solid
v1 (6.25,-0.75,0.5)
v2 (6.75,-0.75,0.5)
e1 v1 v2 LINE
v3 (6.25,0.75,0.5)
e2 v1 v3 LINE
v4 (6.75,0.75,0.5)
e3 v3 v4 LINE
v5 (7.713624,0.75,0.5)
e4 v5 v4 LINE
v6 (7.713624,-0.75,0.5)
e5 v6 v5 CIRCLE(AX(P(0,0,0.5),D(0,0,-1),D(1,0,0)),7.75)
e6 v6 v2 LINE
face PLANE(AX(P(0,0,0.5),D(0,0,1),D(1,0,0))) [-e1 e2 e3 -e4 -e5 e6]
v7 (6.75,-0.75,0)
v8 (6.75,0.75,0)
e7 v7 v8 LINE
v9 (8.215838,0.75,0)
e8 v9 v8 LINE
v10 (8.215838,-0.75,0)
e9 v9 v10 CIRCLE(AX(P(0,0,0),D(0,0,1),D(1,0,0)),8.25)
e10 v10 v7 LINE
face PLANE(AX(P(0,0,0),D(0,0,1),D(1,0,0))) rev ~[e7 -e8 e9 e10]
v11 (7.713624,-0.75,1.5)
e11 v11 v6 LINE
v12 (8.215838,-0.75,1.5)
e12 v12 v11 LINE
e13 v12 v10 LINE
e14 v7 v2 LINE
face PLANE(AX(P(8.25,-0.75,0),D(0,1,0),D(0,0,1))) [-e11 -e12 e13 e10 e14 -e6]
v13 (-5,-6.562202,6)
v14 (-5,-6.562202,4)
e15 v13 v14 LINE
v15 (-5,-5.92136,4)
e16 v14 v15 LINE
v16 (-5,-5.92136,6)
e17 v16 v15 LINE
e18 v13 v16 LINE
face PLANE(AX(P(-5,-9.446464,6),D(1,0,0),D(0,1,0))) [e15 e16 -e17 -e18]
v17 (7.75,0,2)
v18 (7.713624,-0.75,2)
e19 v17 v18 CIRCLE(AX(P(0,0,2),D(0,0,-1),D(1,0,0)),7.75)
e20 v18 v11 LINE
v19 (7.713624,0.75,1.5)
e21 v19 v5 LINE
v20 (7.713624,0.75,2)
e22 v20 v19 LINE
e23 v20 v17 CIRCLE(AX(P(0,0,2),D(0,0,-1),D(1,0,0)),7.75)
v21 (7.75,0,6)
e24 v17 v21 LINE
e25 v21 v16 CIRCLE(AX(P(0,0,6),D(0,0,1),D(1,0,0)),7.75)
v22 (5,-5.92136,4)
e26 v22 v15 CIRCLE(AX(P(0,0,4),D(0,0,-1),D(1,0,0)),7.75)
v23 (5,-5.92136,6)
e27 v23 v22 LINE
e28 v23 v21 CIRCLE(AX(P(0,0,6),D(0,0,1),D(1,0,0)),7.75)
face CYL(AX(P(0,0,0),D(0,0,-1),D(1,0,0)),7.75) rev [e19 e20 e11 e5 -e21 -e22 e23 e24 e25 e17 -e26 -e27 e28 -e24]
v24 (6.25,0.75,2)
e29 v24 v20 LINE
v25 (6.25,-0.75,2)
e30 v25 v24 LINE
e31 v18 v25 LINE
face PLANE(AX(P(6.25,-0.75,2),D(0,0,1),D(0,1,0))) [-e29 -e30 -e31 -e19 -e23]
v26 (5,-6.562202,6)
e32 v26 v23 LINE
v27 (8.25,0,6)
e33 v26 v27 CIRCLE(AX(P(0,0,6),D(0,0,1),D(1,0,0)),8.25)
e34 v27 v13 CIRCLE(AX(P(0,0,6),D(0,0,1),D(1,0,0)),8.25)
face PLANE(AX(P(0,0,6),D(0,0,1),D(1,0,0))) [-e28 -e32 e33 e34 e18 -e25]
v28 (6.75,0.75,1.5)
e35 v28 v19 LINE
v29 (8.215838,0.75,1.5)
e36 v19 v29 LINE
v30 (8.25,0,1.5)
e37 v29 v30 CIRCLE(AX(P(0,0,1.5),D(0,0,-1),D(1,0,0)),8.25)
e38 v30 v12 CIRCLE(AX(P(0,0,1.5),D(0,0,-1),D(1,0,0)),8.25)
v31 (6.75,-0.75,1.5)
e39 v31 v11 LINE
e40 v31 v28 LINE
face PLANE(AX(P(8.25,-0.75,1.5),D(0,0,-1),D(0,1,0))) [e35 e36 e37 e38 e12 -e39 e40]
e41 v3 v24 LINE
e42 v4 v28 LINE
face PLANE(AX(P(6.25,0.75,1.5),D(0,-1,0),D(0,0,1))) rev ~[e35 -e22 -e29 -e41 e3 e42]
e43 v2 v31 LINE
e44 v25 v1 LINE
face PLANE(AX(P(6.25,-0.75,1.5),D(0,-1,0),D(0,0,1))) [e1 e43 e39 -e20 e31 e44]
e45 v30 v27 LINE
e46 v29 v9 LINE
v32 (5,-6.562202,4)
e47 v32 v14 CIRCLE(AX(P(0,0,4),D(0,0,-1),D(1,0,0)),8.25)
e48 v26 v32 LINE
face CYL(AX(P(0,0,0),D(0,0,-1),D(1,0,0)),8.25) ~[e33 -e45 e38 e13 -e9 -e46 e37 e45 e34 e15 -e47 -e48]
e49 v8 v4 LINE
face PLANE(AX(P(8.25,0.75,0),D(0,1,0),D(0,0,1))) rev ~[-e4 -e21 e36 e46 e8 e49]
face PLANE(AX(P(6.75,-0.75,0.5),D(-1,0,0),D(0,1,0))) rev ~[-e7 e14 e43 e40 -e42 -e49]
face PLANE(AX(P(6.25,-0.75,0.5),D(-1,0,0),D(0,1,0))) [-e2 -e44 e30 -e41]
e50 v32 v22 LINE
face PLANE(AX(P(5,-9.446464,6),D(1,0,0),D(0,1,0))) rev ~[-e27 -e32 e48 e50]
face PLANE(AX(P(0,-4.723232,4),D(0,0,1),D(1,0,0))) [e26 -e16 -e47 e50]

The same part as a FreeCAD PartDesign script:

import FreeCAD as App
import Part
import Sketcher
Q = App.Units.Quantity


def faces_at(feature, points):
    """Names of the faces that lie closest to the given points."""
    faces = feature.Shape.Faces
    near = lambda p: min(range(len(faces)), key=lambda i: faces[i].distToShape(Part.Vertex(*p))[0])
    return sorted({f"Face{near(p) + 1}" for p in points})

doc = App.newDocument("Part")
params = doc.addObject("Spreadsheet::Sheet", "Params")
for row, (alias, value) in enumerate([
    ("sketch1_diameter", "16.5 mm"),
    ("pad1_length", "6 mm"),
    ("thickness_wall", "0.5 mm"),
    ("sketch2_width", "10 mm"),
    ("pocket1_length", "2 mm"),
    ("sketch3_width", "1.5 mm"),
    ("pocket2_length", "1.5 mm"),
    ("sketch4_width", "0.5 mm"),
    ("sketch4_height", "1.5 mm"),
    ("pad2_length", "1.5 mm"),
    ("sketch5_width", "1.5 mm"),
    ("sketch5_height", "0.5 mm"),
    ("pad3_length", "1.75 mm"),
], start=1):
    params.set(f"A{row}", alias)
    params.set(f"B{row}", "=" + value)
    params.setAlias(f"B{row}", alias)

body = doc.addObject("PartDesign::Body", "Body")

sketch1 = doc.addObject("Sketcher::SketchObject", "Sketch")
body.addObject(sketch1)
sketch1.AttachmentSupport = (doc.XY_Plane, [""])
sketch1.MapMode = "FlatFace"
sketch1.addGeometry(Part.Circle(App.Vector(0, 0, 0), App.Vector(0, 0, 1), 8), False)
sketch1.addConstraint(Sketcher.Constraint("Coincident", 0, 3, -1, 1))
sketch1.addConstraint(Sketcher.Constraint("Diameter", 0, Q("16.5 mm")))
sketch1.setExpression("Constraints[1]", "Params.sketch1_diameter")
pad1 = doc.addObject("PartDesign::Pad", "Pad")
body.addObject(pad1)
pad1.Profile = sketch1
pad1.setExpression("Length", "Params.pad1_length")
doc.recompute()

thickness = doc.addObject("PartDesign::Thickness", "Thickness")
body.addObject(thickness)
thickness.Base = (pad1, faces_at(pad1, [(0, 0, 6)]))
thickness.setExpression("Value", "Params.thickness_wall")
thickness.Reversed = True
thickness.Join = "Arc"

sketch2 = doc.addObject("Sketcher::SketchObject", "Sketch001")
body.addObject(sketch2)
sketch2.AttachmentSupport = (doc.XY_Plane, [""])
sketch2.MapMode = "FlatFace"
sketch2.AttachmentOffset = App.Placement(App.Vector(0, 0, 6), App.Rotation())
sketch2.addGeometry(Part.LineSegment(App.Vector(-5, 0, 0), App.Vector(-5, -9, 0)), False)
sketch2.addGeometry(Part.LineSegment(App.Vector(-5, -9, 0), App.Vector(5, -9, 0)), False)
sketch2.addGeometry(Part.LineSegment(App.Vector(5, -9, 0), App.Vector(5, 0, 0)), False)
sketch2.addGeometry(Part.LineSegment(App.Vector(5, 0, 0), App.Vector(-5, 0, 0)), False)
sketch2.addConstraint(Sketcher.Constraint("Coincident", 0, 2, 1, 1))
sketch2.addConstraint(Sketcher.Constraint("Coincident", 1, 2, 2, 1))
sketch2.addConstraint(Sketcher.Constraint("Coincident", 2, 2, 3, 1))
sketch2.addConstraint(Sketcher.Constraint("Coincident", 3, 2, 0, 1))
sketch2.addConstraint(Sketcher.Constraint("Vertical", 0))
sketch2.addConstraint(Sketcher.Constraint("Horizontal", 1))
sketch2.addConstraint(Sketcher.Constraint("Vertical", 2))
sketch2.addConstraint(Sketcher.Constraint("Horizontal", 3))
sketch2.addConstraint(Sketcher.Constraint("Symmetric", 2, 2, 3, 2, -1, 1))
sketch2.addConstraint(Sketcher.Constraint("DistanceX", 1, 1, 1, 2, Q("10 mm")))
sketch2.addConstraint(Sketcher.Constraint("DistanceY", 0, 2, 0, 1, Q("9.446465 mm")))
sketch2.setExpression("Constraints[9]", "Params.sketch2_width")
pocket1 = doc.addObject("PartDesign::Pocket", "Pocket")
body.addObject(pocket1)
pocket1.Profile = sketch2
pocket1.setExpression("Length", "Params.pocket1_length")

sketch3 = doc.addObject("Sketcher::SketchObject", "Sketch002")
body.addObject(sketch3)
sketch3.AttachmentSupport = (doc.YZ_Plane, [""])
sketch3.MapMode = "FlatFace"
sketch3.AttachmentOffset = App.Placement(App.Vector(0, 0, 8.25), App.Rotation())
sketch3.addGeometry(Part.LineSegment(App.Vector(-0.8, 1.5, 0), App.Vector(-0.8, 0, 0)), False)
sketch3.addGeometry(Part.LineSegment(App.Vector(-0.8, 0, 0), App.Vector(0.8, 0, 0)), False)
sketch3.addGeometry(Part.LineSegment(App.Vector(0.8, 0, 0), App.Vector(0.8, 1.5, 0)), False)
sketch3.addGeometry(Part.LineSegment(App.Vector(0.8, 1.5, 0), App.Vector(-0.8, 1.5, 0)), False)
sketch3.addConstraint(Sketcher.Constraint("Coincident", 0, 2, 1, 1))
sketch3.addConstraint(Sketcher.Constraint("Coincident", 1, 2, 2, 1))
sketch3.addConstraint(Sketcher.Constraint("Coincident", 2, 2, 3, 1))
sketch3.addConstraint(Sketcher.Constraint("Coincident", 3, 2, 0, 1))
sketch3.addConstraint(Sketcher.Constraint("Vertical", 0))
sketch3.addConstraint(Sketcher.Constraint("Horizontal", 1))
sketch3.addConstraint(Sketcher.Constraint("Vertical", 2))
sketch3.addConstraint(Sketcher.Constraint("Horizontal", 3))
sketch3.addConstraint(Sketcher.Constraint("Symmetric", 0, 2, 1, 2, -1, 1))
sketch3.addConstraint(Sketcher.Constraint("Equal", 3, 0))
sketch3.addConstraint(Sketcher.Constraint("DistanceX", 1, 1, 1, 2, Q("1.5 mm")))
sketch3.setExpression("Constraints[10]", "Params.sketch3_width")
pocket2 = doc.addObject("PartDesign::Pocket", "Pocket001")
body.addObject(pocket2)
pocket2.Profile = sketch3
pocket2.setExpression("Length", "Params.pocket2_length")

sketch4 = doc.addObject("Sketcher::SketchObject", "Sketch003")
body.addObject(sketch4)
sketch4.AttachmentSupport = (doc.XY_Plane, [""])
sketch4.MapMode = "FlatFace"
sketch4.AttachmentOffset = App.Placement(App.Vector(0, 0, 0.5), App.Rotation())
sketch4.addGeometry(Part.LineSegment(App.Vector(6.2, 0.8, 0), App.Vector(6.2, -0.8, 0)), False)
sketch4.addGeometry(Part.LineSegment(App.Vector(6.2, -0.8, 0), App.Vector(6.8, -0.8, 0)), False)
sketch4.addGeometry(Part.LineSegment(App.Vector(6.8, -0.8, 0), App.Vector(6.8, 0.8, 0)), False)
sketch4.addGeometry(Part.LineSegment(App.Vector(6.8, 0.8, 0), App.Vector(6.2, 0.8, 0)), False)
sketch4.addConstraint(Sketcher.Constraint("Coincident", 0, 2, 1, 1))
sketch4.addConstraint(Sketcher.Constraint("Coincident", 1, 2, 2, 1))
sketch4.addConstraint(Sketcher.Constraint("Coincident", 2, 2, 3, 1))
sketch4.addConstraint(Sketcher.Constraint("Coincident", 3, 2, 0, 1))
sketch4.addConstraint(Sketcher.Constraint("Vertical", 0))
sketch4.addConstraint(Sketcher.Constraint("Horizontal", 1))
sketch4.addConstraint(Sketcher.Constraint("Vertical", 2))
sketch4.addConstraint(Sketcher.Constraint("Horizontal", 3))
sketch4.addConstraint(Sketcher.Constraint("DistanceX", 1, 1, 1, 2, Q("0.5 mm")))
sketch4.addConstraint(Sketcher.Constraint("DistanceY", 0, 2, 0, 1, Q("1.5 mm")))
sketch4.addConstraint(Sketcher.Constraint("DistanceX", -1, 1, 0, 2, Q("6.25 mm")))
sketch4.addConstraint(Sketcher.Constraint("DistanceY", 0, 2, -1, 1, Q("0.75 mm")))
sketch4.setExpression("Constraints[8]", "Params.sketch4_width")
sketch4.setExpression("Constraints[9]", "Params.sketch4_height")
pad2 = doc.addObject("PartDesign::Pad", "Pad001")
body.addObject(pad2)
pad2.Profile = sketch4
pad2.setExpression("Length", "Params.pad2_length")

sketch5 = doc.addObject("Sketcher::SketchObject", "Sketch004")
body.addObject(sketch5)
sketch5.AttachmentSupport = (doc.YZ_Plane, [""])
sketch5.MapMode = "FlatFace"
sketch5.AttachmentOffset = App.Placement(App.Vector(0, 0, 6.25), App.Rotation())
sketch5.addGeometry(Part.LineSegment(App.Vector(-0.8, 2, 0), App.Vector(-0.8, 1.5, 0)), False)
sketch5.addGeometry(Part.LineSegment(App.Vector(-0.8, 1.5, 0), App.Vector(0.8, 1.5, 0)), False)
sketch5.addGeometry(Part.LineSegment(App.Vector(0.8, 1.5, 0), App.Vector(0.8, 2, 0)), False)
sketch5.addGeometry(Part.LineSegment(App.Vector(0.8, 2, 0), App.Vector(-0.8, 2, 0)), False)
sketch5.addConstraint(Sketcher.Constraint("Coincident", 0, 2, 1, 1))
sketch5.addConstraint(Sketcher.Constraint("Coincident", 1, 2, 2, 1))
sketch5.addConstraint(Sketcher.Constraint("Coincident", 2, 2, 3, 1))
sketch5.addConstraint(Sketcher.Constraint("Coincident", 3, 2, 0, 1))
sketch5.addConstraint(Sketcher.Constraint("Vertical", 0))
sketch5.addConstraint(Sketcher.Constraint("Horizontal", 1))
sketch5.addConstraint(Sketcher.Constraint("Vertical", 2))
sketch5.addConstraint(Sketcher.Constraint("Horizontal", 3))
sketch5.addConstraint(Sketcher.Constraint("DistanceX", 1, 1, 1, 2, Q("1.5 mm")))
sketch5.addConstraint(Sketcher.Constraint("DistanceY", 0, 2, 0, 1, Q("0.5 mm")))
sketch5.addConstraint(Sketcher.Constraint("DistanceY", -1, 1, 2, 2, Q("2 mm")))
sketch5.addConstraint(Sketcher.Constraint("DistanceX", 0, 2, -1, 1, Q("0.75 mm")))
sketch5.setExpression("Constraints[8]", "Params.sketch5_width")
sketch5.setExpression("Constraints[9]", "Params.sketch5_height")
pad3 = doc.addObject("PartDesign::Pad", "Pad002")
body.addObject(pad3)
pad3.Profile = sketch5
pad3.setExpression("Length", "Params.pad3_length")

doc.recompute()
